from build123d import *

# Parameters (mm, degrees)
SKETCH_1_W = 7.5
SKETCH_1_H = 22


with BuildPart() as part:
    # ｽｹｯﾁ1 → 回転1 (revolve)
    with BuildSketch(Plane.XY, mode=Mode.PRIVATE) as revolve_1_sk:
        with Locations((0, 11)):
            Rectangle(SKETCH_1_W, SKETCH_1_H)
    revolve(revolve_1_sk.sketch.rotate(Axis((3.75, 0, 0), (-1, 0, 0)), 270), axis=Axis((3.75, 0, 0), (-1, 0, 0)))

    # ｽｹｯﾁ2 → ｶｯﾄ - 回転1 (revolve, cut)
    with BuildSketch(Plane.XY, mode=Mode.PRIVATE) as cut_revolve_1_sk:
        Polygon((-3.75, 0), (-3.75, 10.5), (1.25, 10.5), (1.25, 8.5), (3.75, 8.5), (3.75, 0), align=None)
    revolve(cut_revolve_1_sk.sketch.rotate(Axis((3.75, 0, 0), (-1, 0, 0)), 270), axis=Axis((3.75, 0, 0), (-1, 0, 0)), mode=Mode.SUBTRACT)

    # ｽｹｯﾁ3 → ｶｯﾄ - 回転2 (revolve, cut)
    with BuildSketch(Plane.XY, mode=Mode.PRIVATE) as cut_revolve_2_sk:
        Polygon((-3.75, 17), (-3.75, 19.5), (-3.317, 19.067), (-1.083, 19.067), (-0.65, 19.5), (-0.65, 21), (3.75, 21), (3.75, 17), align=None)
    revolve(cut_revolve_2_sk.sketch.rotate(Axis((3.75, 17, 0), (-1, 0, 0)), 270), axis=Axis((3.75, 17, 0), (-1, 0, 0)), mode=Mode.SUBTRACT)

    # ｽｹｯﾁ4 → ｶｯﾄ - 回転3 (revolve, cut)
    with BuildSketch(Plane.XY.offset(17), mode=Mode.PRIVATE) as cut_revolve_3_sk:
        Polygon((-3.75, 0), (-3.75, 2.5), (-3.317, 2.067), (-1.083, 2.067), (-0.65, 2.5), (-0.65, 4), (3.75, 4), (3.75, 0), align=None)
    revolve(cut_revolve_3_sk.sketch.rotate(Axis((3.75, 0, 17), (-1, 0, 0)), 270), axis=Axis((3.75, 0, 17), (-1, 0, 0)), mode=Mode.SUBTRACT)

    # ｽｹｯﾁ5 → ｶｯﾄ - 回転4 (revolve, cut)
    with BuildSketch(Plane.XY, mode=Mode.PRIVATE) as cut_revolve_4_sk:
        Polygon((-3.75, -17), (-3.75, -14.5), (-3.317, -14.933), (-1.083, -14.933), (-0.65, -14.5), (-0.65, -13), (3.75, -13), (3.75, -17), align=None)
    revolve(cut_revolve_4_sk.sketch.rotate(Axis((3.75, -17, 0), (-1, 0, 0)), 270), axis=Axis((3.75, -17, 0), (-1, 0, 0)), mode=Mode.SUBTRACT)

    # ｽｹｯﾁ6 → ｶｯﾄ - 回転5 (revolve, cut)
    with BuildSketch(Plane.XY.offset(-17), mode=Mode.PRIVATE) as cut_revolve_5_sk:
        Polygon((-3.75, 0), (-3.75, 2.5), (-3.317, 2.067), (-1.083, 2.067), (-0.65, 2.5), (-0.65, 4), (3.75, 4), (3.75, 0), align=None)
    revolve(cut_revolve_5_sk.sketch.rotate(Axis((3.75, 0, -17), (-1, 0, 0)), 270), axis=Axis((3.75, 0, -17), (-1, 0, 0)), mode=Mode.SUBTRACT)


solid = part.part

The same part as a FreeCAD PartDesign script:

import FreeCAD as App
import Part
import Sketcher

V = App.Vector


def add_polygon(sketch, points):
    """Adds a closed chain of lines whose ends are joined by coincident constraints."""
    first, n = sketch.GeometryCount, len(points)
    for a, b in zip(points, points[1:] + points[:1]):
        sketch.addGeometry(Part.LineSegment(App.Vector(*a, 0), App.Vector(*b, 0)), False)
    for i in range(n):
        sketch.addConstraint(Sketcher.Constraint("Coincident", first + i, 2, first + (i + 1) % n, 1))

doc = App.newDocument("Part")
params = doc.addObject("Spreadsheet::Sheet", "Params")
for row, (alias, value) in enumerate([
    ("sketch1_height", "22 mm"),
    ("sketch1_width", "7.5 mm"),
    ("revolution_angle", "360 deg"),
    ("sketch2_width", "5 mm"),
    ("sketch2_height", "2 mm"),
    ("sketch2_width2", "7.5 mm"),
    ("sketch2_height2", "10.5 mm"),
    ("groove_angle", "360 deg"),
    ("sketch3_height", "4 mm"),
    ("sketch3_width", "7.5 mm"),
    ("sketch3_width2", "4.4 mm"),
    ("sketch3_height2", "2.5 mm"),
    ("groove2_angle", "360 deg"),
    ("sketch4_height", "4 mm"),
    ("sketch4_width", "7.5 mm"),
    ("sketch4_width2", "4.4 mm"),
    ("sketch4_height2", "2.5 mm"),
    ("groove3_angle", "360 deg"),
    ("sketch5_height", "4 mm"),
    ("sketch5_width", "7.5 mm"),
    ("sketch5_width2", "4.4 mm"),
    ("sketch5_height2", "2.5 mm"),
    ("groove4_angle", "360 deg"),
    ("sketch6_height", "4 mm"),
    ("sketch6_width", "7.5 mm"),
    ("sketch6_width2", "4.4 mm"),
    ("sketch6_height2", "2.5 mm"),
    ("groove5_angle", "360 deg"),
], start=1):
    params.set(f"A{row}", alias)
    params.set(f"B{row}", "=" + value)
    params.setAlias(f"B{row}", alias)

body = doc.addObject("PartDesign::Body", "Body")

# Sketch on XY plane
sketch1 = body.newObject("Sketcher::SketchObject", "Sketch")
sketch1.AttachmentSupport = (doc.getObject("XY_Plane"), [""])
sketch1.MapMode = "FlatFace"
add_polygon(sketch1, [(-4, 22), (-4, 0), (4, 0), (4, 22)])  # lines 0-3
sketch1.addConstraint([
    Sketcher.Constraint("Vertical", 0),
    Sketcher.Constraint("Horizontal", 1),
    Sketcher.Constraint("Vertical", 2),
    Sketcher.Constraint("Horizontal", 3),
    Sketcher.Constraint("Symmetric", 0, 2, 1, 2, -1, 1),
    Sketcher.Constraint("DistanceY", 0, 2, 0, 1, 22.0),
    Sketcher.Constraint("DistanceX", 1, 1, 1, 2, 7.5),
])
sketch1.setExpression("Constraints[9]", "Params.sketch1_height")
sketch1.setExpression("Constraints[10]", "Params.sketch1_width")
revolution = body.newObject("PartDesign::Revolution", "Revolution")
revolution.Profile = sketch1
revolution.ReferenceAxis = (sketch1, ["H_Axis"])
revolution.setExpression("Angle", "Params.revolution_angle")

# Sketch on XY plane
sketch2 = body.newObject("Sketcher::SketchObject", "Sketch001")
sketch2.AttachmentSupport = (doc.getObject("XY_Plane"), [""])
sketch2.MapMode = "FlatFace"
add_polygon(sketch2, [(-3.8, 10.5), (-3.8, 0), (3.8, 0), (3.8, 8.5), (1.2, 8.5), (1.2, 10.5)])  # lines 0-5
sketch2.addConstraint([
    Sketcher.Constraint("Vertical", 0),
    Sketcher.Constraint("Horizontal", 1),
    Sketcher.Constraint("Vertical", 2),
    Sketcher.Constraint("Horizontal", 3),
    Sketcher.Constraint("Vertical", 4),
    Sketcher.Constraint("Horizontal", 5),
    Sketcher.Constraint("Symmetric", 0, 2, 1, 2, -1, 1),
    Sketcher.Constraint("DistanceX", 5, 2, 5, 1, 5.0),
    Sketcher.Constraint("DistanceY", 4, 1, 4, 2, 2.0),
    Sketcher.Constraint("DistanceX", 1, 1, 1, 2, 7.5),
    Sketcher.Constraint("DistanceY", 0, 2, 0, 1, 10.5),
])
sketch2.setExpression("Constraints[13]", "Params.sketch2_width")
sketch2.setExpression("Constraints[14]", "Params.sketch2_height")
sketch2.setExpression("Constraints[15]", "Params.sketch2_width2")
sketch2.setExpression("Constraints[16]", "Params.sketch2_height2")
groove = body.newObject("PartDesign::Groove", "Groove")
groove.Profile = sketch2
groove.ReferenceAxis = (sketch2, ["H_Axis"])
groove.setExpression("Angle", "Params.groove_angle")

# Sketch on XY plane
sketch3 = body.newObject("Sketcher::SketchObject", "Sketch002")
sketch3.AttachmentSupport = (doc.getObject("XY_Plane"), [""])
sketch3.MapMode = "FlatFace"
add_polygon(sketch3, [(-3.8, 19.5), (-3.8, 17), (3.8, 17), (3.8, 21), (-0.7, 21), (-0.7, 19.5), (-1.1, 19.1), (-3.3, 19.1)])  # lines 0-7
sketch3.addGeometry(Part.LineSegment(V(3.8, 17, 0), V(-3.8, 17, 0)), True)  # axis
sketch3.addConstraint([
    Sketcher.Constraint("Vertical", 0),
    Sketcher.Constraint("Horizontal", 1),
    Sketcher.Constraint("Vertical", 2),
    Sketcher.Constraint("Horizontal", 3),
    Sketcher.Constraint("Vertical", 4),
    Sketcher.Constraint("Horizontal", 6),
    Sketcher.Constraint("Horizontal", 8),
    Sketcher.Constraint("Coincident", 8, 1, 1, 2),
    Sketcher.Constraint("Perpendicular", 5, 7),
    Sketcher.Constraint("Horizontal", 4, 2, 7, 2),
    Sketcher.Constraint("Vertical", 7, 2, 8, 2),
    Sketcher.Constraint("Equal", 5, 7),
    Sketcher.Constraint("DistanceY", 2, 1, 2, 2, 4.0),
    Sketcher.Constraint("DistanceX", 1, 1, 1, 2, 7.5),
    Sketcher.Constraint("DistanceX", 3, 2, 3, 1, 4.4),
    Sketcher.Constraint("DistanceY", 0, 2, 0, 1, 2.5),
    Sketcher.Constraint("DistanceY", -1, 1, 0, 2, 17.0),
    Sketcher.Constraint("DistanceX", 6, 2, 6, 1, 2.234),
    Sketcher.Constraint("DistanceX", 0, 2, -1, 1, 3.75),
])
sketch3.setExpression("Constraints[20]", "Params.sketch3_height")
sketch3.setExpression("Constraints[21]", "Params.sketch3_width")
sketch3.setExpression("Constraints[22]", "Params.sketch3_width2")
sketch3.setExpression("Constraints[23]", "Params.sketch3_height2")
groove2 = body.newObject("PartDesign::Groove", "Groove001")
groove2.Profile = sketch3
groove2.ReferenceAxis = (sketch3, ["Axis0"])
groove2.setExpression("Angle", "Params.groove2_angle")

# Sketch on XY plane
sketch4 = body.newObject("Sketcher::SketchObject", "Sketch003")
sketch4.AttachmentSupport = (doc.getObject("XY_Plane"), [""])
sketch4.MapMode = "FlatFace"
sketch4.AttachmentOffset = App.Placement(V(0, 0, 17), App.Rotation())
add_polygon(sketch4, [(-3.8, 2.5), (-3.8, 0), (3.8, 0), (3.8, 4), (-0.7, 4), (-0.7, 2.5), (-1.1, 2.1), (-3.3, 2.1)])  # lines 0-7
sketch4.addConstraint([
    Sketcher.Constraint("Vertical", 0),
    Sketcher.Constraint("Horizontal", 1),
    Sketcher.Constraint("Vertical", 2),
    Sketcher.Constraint("Horizontal", 3),
    Sketcher.Constraint("Vertical", 4),
    Sketcher.Constraint("Horizontal", 6),
    Sketcher.Constraint("Symmetric", 0, 2, 1, 2, -1, 1),
    Sketcher.Constraint("Perpendicular", 5, 7),
    Sketcher.Constraint("Horizontal", 4, 2, 7, 2),
    Sketcher.Constraint("Equal", 5, 7),
    Sketcher.Constraint("DistanceY", 2, 1, 2, 2, 4.0),
    Sketcher.Constraint("DistanceX", 1, 1, 1, 2, 7.5),
    Sketcher.Constraint("DistanceX", 3, 2, 3, 1, 4.4),
    Sketcher.Constraint("DistanceY", 0, 2, 0, 1, 2.5),
    Sketcher.Constraint("DistanceX", 6, 2, 6, 1, 2.234),
])
sketch4.setExpression("Constraints[18]", "Params.sketch4_height")
sketch4.setExpression("Constraints[19]", "Params.sketch4_width")
sketch4.setExpression("Constraints[20]", "Params.sketch4_width2")
sketch4.setExpression("Constraints[21]", "Params.sketch4_height2")
groove3 = body.newObject("PartDesign::Groove", "Groove002")
groove3.Profile = sketch4
groove3.ReferenceAxis = (sketch4, ["H_Axis"])
groove3.setExpression("Angle", "Params.groove3_angle")

# Sketch on XY plane
sketch5 = body.newObject("Sketcher::SketchObject", "Sketch004")
sketch5.AttachmentSupport = (doc.getObject("XY_Plane"), [""])
sketch5.MapMode = "FlatFace"
add_polygon(sketch5, [(-3.8, -14.5), (-3.8, -17), (3.8, -17), (3.8, -13), (-0.7, -13), (-0.7, -14.5), (-1.1, -14.9), (-3.3, -14.9)])  # lines 0-7
sketch5.addGeometry(Part.LineSegment(V(3.8, -17, 0), V(-3.8, -17, 0)), True)  # axis
sketch5.addConstraint([
    Sketcher.Constraint("Vertical", 0),
    Sketcher.Constraint("Horizontal", 1),
    Sketcher.Constraint("Vertical", 2),
    Sketcher.Constraint("Horizontal", 3),
    Sketcher.Constraint("Vertical", 4),
    Sketcher.Constraint("Horizontal", 6),
    Sketcher.Constraint("Horizontal", 8),
    Sketcher.Constraint("Coincident", 8, 1, 1, 2),
    Sketcher.Constraint("Perpendicular", 5, 7),
    Sketcher.Constraint("Horizontal", 4, 2, 7, 2),
    Sketcher.Constraint("Vertical", 7, 2, 8, 2),
    Sketcher.Constraint("Equal", 5, 7),
    Sketcher.Constraint("DistanceY", 2, 1, 2, 2, 4.0),
    Sketcher.Constraint("DistanceX", 1, 1, 1, 2, 7.5),
    Sketcher.Constraint("DistanceX", 3, 2, 3, 1, 4.4),
    Sketcher.Constraint("DistanceY", 0, 2, 0, 1, 2.5),
    Sketcher.Constraint("DistanceY", 0, 2, -1, 1, 17.0),
    Sketcher.Constraint("DistanceX", 6, 2, 6, 1, 2.234),
    Sketcher.Constraint("DistanceX", 0, 2, -1, 1, 3.75),
])
sketch5.setExpression("Constraints[20]", "Params.sketch5_height")
sketch5.setExpression("Constraints[21]", "Params.sketch5_width")
sketch5.setExpression("Constraints[22]", "Params.sketch5_width2")
sketch5.setExpression("Constraints[23]", "Params.sketch5_height2")
groove4 = body.newObject("PartDesign::Groove", "Groove003")
groove4.Profile = sketch5
groove4.ReferenceAxis = (sketch5, ["Axis0"])
groove4.setExpression("Angle", "Params.groove4_angle")

# Sketch on XY plane
sketch6 = body.newObject("Sketcher::SketchObject", "Sketch005")
sketch6.AttachmentSupport = (doc.getObject("XY_Plane"), [""])
sketch6.MapMode = "FlatFace"
sketch6.AttachmentOffset = App.Placement(V(0, 0, -17), App.Rotation())
add_polygon(sketch6, [(-3.8, 2.5), (-3.8, 0), (3.8, 0), (3.8, 4), (-0.7, 4), (-0.7, 2.5), (-1.1, 2.1), (-3.3, 2.1)])  # lines 0-7
sketch6.addConstraint([
    Sketcher.Constraint("Vertical", 0),
    Sketcher.Constraint("Horizontal", 1),
    Sketcher.Constraint("Vertical", 2),
    Sketcher.Constraint("Horizontal", 3),
    Sketcher.Constraint("Vertical", 4),
    Sketcher.Constraint("Horizontal", 6),
    Sketcher.Constraint("Symmetric", 0, 2, 1, 2, -1, 1),
    Sketcher.Constraint("Perpendicular", 5, 7),
    Sketcher.Constraint("Horizontal", 4, 2, 7, 2),
    Sketcher.Constraint("Equal", 5, 7),
    Sketcher.Constraint("DistanceY", 2, 1, 2, 2, 4.0),
    Sketcher.Constraint("DistanceX", 1, 1, 1, 2, 7.5),
    Sketcher.Constraint("DistanceX", 3, 2, 3, 1, 4.4),
    Sketcher.Constraint("DistanceY", 0, 2, 0, 1, 2.5),
    Sketcher.Constraint("DistanceX", 6, 2, 6, 1, 2.234),
])
sketch6.setExpression("Constraints[18]", "Params.sketch6_height")
sketch6.setExpression("Constraints[19]", "Params.sketch6_width")
sketch6.setExpression("Constraints[20]", "Params.sketch6_width2")
sketch6.setExpression("Constraints[21]", "Params.sketch6_height2")
groove5 = body.newObject("PartDesign::Groove", "Groove004")
groove5.Profile = sketch6
groove5.ReferenceAxis = (sketch6, ["H_Axis"])
groove5.setExpression("Angle", "Params.groove5_angle")

doc.recompute()
